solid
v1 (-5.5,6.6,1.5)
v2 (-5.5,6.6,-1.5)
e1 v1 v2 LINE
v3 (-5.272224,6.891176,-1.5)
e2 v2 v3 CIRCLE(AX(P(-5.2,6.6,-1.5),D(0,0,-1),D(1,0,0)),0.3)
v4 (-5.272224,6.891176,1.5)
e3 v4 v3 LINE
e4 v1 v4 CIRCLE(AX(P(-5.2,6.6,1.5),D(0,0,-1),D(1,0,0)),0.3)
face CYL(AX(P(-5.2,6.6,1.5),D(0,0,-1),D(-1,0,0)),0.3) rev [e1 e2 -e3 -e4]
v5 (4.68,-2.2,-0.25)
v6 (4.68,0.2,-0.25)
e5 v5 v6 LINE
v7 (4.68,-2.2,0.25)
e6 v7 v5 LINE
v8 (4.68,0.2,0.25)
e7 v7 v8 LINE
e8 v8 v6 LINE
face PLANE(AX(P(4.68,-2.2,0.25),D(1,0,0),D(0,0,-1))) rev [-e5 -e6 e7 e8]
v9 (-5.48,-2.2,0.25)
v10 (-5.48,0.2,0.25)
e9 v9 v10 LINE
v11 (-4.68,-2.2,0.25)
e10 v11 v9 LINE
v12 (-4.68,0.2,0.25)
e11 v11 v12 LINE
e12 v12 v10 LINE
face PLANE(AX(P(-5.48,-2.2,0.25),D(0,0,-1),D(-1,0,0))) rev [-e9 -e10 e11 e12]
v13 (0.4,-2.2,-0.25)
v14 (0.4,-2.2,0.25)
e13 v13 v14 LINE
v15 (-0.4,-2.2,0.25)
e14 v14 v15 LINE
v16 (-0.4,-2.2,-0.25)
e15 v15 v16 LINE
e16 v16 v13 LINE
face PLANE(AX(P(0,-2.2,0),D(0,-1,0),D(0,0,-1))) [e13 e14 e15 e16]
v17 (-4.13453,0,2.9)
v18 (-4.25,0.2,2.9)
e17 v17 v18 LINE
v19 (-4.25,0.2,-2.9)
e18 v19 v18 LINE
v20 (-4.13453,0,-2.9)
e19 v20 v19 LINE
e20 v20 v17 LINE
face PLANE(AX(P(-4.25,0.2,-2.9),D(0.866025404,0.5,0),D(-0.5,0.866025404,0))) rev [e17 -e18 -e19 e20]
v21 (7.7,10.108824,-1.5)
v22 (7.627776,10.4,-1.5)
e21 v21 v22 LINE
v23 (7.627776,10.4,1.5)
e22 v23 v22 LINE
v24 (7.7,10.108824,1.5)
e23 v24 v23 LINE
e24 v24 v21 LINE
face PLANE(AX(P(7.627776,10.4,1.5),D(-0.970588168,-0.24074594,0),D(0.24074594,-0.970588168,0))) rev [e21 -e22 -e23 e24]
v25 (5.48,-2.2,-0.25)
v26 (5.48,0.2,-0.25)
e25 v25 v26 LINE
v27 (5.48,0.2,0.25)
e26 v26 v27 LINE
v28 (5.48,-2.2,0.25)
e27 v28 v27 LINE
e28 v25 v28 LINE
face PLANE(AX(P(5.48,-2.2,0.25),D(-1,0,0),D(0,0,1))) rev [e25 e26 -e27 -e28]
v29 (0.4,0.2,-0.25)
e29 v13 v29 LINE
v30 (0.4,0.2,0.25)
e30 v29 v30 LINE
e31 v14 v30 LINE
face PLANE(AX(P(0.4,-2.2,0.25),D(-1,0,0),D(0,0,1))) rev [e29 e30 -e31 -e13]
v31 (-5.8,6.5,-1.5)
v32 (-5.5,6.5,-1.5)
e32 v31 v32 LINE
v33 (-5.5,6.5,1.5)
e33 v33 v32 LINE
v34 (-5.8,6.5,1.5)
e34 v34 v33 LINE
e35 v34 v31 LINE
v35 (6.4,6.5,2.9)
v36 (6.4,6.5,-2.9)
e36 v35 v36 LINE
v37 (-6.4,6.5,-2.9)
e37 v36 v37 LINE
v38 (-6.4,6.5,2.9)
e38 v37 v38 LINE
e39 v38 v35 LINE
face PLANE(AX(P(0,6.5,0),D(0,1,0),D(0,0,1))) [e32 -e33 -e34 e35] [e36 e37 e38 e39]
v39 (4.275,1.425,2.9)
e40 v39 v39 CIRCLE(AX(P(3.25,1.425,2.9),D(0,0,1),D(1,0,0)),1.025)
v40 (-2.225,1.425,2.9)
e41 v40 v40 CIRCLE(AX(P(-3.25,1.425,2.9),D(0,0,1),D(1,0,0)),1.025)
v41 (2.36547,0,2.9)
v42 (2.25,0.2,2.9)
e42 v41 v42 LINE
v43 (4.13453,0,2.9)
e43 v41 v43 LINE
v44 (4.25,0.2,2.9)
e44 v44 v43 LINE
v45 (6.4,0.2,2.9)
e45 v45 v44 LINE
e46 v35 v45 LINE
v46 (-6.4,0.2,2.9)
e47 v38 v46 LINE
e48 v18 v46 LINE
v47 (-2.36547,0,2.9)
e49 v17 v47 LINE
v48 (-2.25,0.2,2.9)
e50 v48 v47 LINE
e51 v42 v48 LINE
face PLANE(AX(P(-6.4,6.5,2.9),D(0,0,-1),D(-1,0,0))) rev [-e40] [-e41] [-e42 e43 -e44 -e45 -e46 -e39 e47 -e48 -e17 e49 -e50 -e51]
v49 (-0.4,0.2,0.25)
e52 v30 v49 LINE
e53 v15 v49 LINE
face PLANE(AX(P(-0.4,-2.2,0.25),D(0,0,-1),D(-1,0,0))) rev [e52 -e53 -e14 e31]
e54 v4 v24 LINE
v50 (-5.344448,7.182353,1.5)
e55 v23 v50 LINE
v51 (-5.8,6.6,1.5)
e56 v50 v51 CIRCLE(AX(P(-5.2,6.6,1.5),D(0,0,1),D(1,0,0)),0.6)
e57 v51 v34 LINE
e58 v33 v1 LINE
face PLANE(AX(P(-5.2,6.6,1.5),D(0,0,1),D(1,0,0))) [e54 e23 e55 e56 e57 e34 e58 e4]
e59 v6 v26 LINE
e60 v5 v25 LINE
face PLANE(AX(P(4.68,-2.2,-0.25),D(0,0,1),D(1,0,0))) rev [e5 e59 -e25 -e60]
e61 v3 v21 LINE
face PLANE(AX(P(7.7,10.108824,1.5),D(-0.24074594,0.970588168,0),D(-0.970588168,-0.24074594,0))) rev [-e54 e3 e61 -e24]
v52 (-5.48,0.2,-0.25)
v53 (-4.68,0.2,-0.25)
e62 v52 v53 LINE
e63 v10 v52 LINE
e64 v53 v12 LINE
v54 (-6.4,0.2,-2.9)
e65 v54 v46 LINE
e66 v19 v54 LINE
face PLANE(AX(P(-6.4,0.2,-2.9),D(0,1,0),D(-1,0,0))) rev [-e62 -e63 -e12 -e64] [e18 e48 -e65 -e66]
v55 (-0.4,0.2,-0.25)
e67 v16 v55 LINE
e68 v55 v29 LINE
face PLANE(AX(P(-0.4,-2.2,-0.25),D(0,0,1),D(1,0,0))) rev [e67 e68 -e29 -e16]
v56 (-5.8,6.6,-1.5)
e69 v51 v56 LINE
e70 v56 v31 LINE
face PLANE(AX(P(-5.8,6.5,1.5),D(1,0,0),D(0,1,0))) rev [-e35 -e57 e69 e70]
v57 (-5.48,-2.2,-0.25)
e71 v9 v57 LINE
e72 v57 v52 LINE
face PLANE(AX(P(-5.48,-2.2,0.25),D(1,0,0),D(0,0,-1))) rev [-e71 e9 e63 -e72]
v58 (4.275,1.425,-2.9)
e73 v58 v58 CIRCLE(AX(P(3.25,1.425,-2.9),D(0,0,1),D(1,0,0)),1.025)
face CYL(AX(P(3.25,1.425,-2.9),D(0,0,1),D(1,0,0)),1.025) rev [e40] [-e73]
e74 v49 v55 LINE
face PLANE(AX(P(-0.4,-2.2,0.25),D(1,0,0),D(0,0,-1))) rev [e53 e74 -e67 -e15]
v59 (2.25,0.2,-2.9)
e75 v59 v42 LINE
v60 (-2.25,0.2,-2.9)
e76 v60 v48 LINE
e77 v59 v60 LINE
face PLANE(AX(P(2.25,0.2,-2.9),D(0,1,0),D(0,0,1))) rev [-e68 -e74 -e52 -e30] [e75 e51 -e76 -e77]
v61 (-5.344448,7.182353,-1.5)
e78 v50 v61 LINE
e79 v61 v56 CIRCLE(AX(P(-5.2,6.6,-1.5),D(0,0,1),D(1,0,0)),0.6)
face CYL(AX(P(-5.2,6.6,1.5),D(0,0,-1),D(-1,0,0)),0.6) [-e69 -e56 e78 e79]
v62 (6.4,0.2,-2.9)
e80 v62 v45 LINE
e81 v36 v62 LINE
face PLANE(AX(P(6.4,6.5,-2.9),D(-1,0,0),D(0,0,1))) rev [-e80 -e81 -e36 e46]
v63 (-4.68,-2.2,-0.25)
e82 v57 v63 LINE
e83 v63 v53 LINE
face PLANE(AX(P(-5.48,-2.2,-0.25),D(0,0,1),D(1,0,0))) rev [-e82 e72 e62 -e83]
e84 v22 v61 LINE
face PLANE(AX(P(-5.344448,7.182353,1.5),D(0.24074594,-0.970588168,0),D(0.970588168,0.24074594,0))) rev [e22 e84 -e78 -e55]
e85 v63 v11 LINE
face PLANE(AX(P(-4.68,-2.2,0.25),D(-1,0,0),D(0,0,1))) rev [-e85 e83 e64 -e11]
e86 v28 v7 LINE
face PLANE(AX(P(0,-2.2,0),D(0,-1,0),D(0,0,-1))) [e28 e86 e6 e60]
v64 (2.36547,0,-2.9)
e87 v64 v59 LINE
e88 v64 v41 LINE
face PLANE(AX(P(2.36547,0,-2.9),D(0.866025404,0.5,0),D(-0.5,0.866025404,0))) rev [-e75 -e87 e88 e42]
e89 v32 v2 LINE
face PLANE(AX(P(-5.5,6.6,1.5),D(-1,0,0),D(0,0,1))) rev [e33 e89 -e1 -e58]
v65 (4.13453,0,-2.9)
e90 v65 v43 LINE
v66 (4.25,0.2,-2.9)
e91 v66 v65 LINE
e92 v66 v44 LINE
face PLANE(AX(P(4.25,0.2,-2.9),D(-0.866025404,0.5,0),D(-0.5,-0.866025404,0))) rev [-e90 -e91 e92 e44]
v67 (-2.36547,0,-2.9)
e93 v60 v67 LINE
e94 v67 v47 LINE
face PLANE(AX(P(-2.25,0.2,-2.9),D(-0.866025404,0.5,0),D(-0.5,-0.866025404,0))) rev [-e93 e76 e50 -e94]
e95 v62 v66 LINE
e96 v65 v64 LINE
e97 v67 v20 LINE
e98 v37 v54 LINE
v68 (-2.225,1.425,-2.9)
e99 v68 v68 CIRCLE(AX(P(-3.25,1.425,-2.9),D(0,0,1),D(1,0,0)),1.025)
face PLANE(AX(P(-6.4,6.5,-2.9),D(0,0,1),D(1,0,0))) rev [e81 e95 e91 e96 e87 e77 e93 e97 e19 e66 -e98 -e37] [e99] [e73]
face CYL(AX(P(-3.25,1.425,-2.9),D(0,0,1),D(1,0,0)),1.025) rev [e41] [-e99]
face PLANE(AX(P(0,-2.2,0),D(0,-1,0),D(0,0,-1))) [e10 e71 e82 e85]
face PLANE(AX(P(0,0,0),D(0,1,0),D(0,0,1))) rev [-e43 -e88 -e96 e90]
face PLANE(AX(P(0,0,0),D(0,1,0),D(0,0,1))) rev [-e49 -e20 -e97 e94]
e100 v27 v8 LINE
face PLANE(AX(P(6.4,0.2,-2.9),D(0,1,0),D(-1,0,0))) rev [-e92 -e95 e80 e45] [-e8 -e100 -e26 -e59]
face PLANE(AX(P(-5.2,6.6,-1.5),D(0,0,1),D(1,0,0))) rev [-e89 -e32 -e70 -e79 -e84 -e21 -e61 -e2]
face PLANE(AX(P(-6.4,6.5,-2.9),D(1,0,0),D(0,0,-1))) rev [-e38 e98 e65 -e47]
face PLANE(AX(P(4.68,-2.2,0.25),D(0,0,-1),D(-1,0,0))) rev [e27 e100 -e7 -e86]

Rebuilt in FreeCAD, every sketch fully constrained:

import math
import FreeCAD as App
import Part
import Sketcher
from FreeCAD import Vector
Q = App.Units.Quantity


def add_polygon(sketch, points):
    """Adds a closed chain of lines whose ends are joined by coincident constraints."""
    first, n = sketch.GeometryCount, len(points)
    for a, b in zip(points, points[1:] + points[:1]):
        sketch.addGeometry(Part.LineSegment(App.Vector(*a, 0), App.Vector(*b, 0)), False)
    for i in range(n):
        sketch.addConstraint(Sketcher.Constraint("Coincident", first + i, 2, first + (i + 1) % n, 1))

doc = App.newDocument("Part")
body = doc.addObject("PartDesign::Body", "Body")

# Sketch on XZ plane
sketch1 = body.newObject("Sketcher::SketchObject", "Sketch")
sketch1.AttachmentSupport = (doc.getObject("XZ_Plane"), [""])
sketch1.MapMode = "FlatFace"
add_polygon(sketch1, [(-6.4, -2.9), (-6.4, 2.9), (6.4, 2.9), (6.4, -2.9)])  # lines 0-3
sketch1.addConstraint([
    Sketcher.Constraint("Vertical", 0),
    Sketcher.Constraint("Horizontal", 1),
    Sketcher.Constraint("Vertical", 2),
    Sketcher.Constraint("Horizontal", 3),
    Sketcher.Constraint("Symmetric", 0, 2, 2, 2, -1, 1),
    Sketcher.Constraint("DistanceX", 1, 1, 1, 2, Q("12.8 mm")),
    Sketcher.Constraint("DistanceY", 0, 1, 0, 2, Q("5.8 mm")),
])
pad1 = body.newObject("PartDesign::Pad", "Pad")
pad1.Profile = sketch1
pad1.Length = 6.5
pad1.Reversed = True

# Sketch on XY plane
sketch2 = body.newObject("Sketcher::SketchObject", "Sketch001")
sketch2.AttachmentSupport = (doc.getObject("XY_Plane"), [""])
sketch2.MapMode = "FlatFace"
sketch2.AttachmentOffset = App.Placement(Vector(0, 0, 2.9), App.Rotation())
sketch2.addGeometry(Part.Circle(Vector(-3.25, 1.425, 0), Vector(0, 0, 1), 1.025), False)  # 0
sketch2.addGeometry(Part.Circle(Vector(3.25, 1.425, 0), Vector(0, 0, 1), 1.025), False)  # 1
add_polygon(sketch2, [(-4.25, 0.2), (-6.4, 0.2), (-6.4, 0), (-4.13453, 0)])  # lines 2-5
add_polygon(sketch2, [(4.13453, 0), (6.4, 0), (6.4, 0.2), (4.25, 0.2)])  # lines 6-9
add_polygon(sketch2, [(2.36547, 0), (2.25, 0.2), (-2.25, 0.2), (-2.36547, 0)])  # lines 10-13
sketch2.addConstraint([
    Sketcher.Constraint("Horizontal", 2),
    Sketcher.Constraint("Vertical", 3),
    Sketcher.Constraint("Horizontal", 4),
    Sketcher.Constraint("Horizontal", 6),
    Sketcher.Constraint("Vertical", 7),
    Sketcher.Constraint("Horizontal", 8),
    Sketcher.Constraint("Horizontal", 11),
    Sketcher.Constraint("Horizontal", 13),
    Sketcher.Constraint("Equal", 0, 1),
    Sketcher.Constraint("Symmetric", 3, 2, 6, 2, -1, 1),
    Sketcher.Constraint("Symmetric", 12, 2, 13, 2, -1, 1),
    Sketcher.Constraint("Symmetric", 0, 3, 1, 3, -2),
    Sketcher.Constraint("Symmetric", 5, 2, 8, 2, -2),
    Sketcher.Constraint("Symmetric", 4, 2, 9, 2, -2),
    Sketcher.Constraint("Parallel", 5, 10),
    Sketcher.Constraint("Parallel", 9, 12),
    Sketcher.Constraint("Horizontal", 8, 2, 10, 2),
    Sketcher.Constraint("Diameter", 0, Q("2.05 mm")),
    Sketcher.Constraint("Angle", 5, Q("120 deg")),
    Sketcher.Constraint("DistanceX", 11, 2, 11, 1, Q("4.5 mm")),
    Sketcher.Constraint("DistanceY", 3, 2, 3, 1, Q("0.2 mm")),
    Sketcher.Constraint("DistanceX", 5, 2, 0, 3, Q("1 mm")),
    Sketcher.Constraint("DistanceX", 10, 2, 1, 3, Q("1 mm")),
    Sketcher.Constraint("DistanceX", 2, 2, 2, 1, Q("2.15 mm")),
    Sketcher.Constraint("DistanceY", -1, 1, 0, 3, Q("1.425 mm")),
])
pocket1 = body.newObject("PartDesign::Pocket", "Pocket")
pocket1.Profile = sketch2
pocket1.Type = "ThroughAll"

# Sketch on XZ plane
sketch3 = body.newObject("Sketcher::SketchObject", "Sketch002")
sketch3.AttachmentSupport = (doc.getObject("XZ_Plane"), [""])
sketch3.MapMode = "FlatFace"
sketch3.AttachmentOffset = App.Placement(Vector(0, 0, -0.2), App.Rotation())
add_polygon(sketch3, [(-0.4, 0.25), (-0.4, -0.25), (0.4, -0.25), (0.4, 0.25)])  # lines 0-3
add_polygon(sketch3, [(4.68, 0.25), (4.68, -0.25), (5.48, -0.25), (5.48, 0.25)])  # lines 4-7
add_polygon(sketch3, [(-5.48, 0.25), (-5.48, -0.25), (-4.68, -0.25), (-4.68, 0.25)])  # lines 8-11
sketch3.addConstraint([
    Sketcher.Constraint("Vertical", 0),
    Sketcher.Constraint("Horizontal", 1),
    Sketcher.Constraint("Vertical", 2),
    Sketcher.Constraint("Horizontal", 3),
    Sketcher.Constraint("Vertical", 4),
    Sketcher.Constraint("Horizontal", 5),
    Sketcher.Constraint("Vertical", 6),
    Sketcher.Constraint("Horizontal", 7),
    Sketcher.Constraint("Vertical", 8),
    Sketcher.Constraint("Horizontal", 9),
    Sketcher.Constraint("Vertical", 10),
    Sketcher.Constraint("Horizontal", 11),
    Sketcher.Constraint("Symmetric", 0, 2, 2, 2, -1, 1),
    Sketcher.Constraint("Symmetric", 6, 2, 8, 2, -1, 1),
    Sketcher.Constraint("Symmetric", 4, 2, 10, 2, -1, 1),
    Sketcher.Constraint("Horizontal", 1, 2, 4, 2),
    Sketcher.Constraint("Horizontal", 3, 2, 6, 2),
    Sketcher.Constraint("Equal", 3, 5),
    Sketcher.Constraint("DistanceX", 1, 1, 1, 2, Q("0.8 mm")),
    Sketcher.Constraint("DistanceY", 0, 2, 0, 1, Q("0.5 mm")),
    Sketcher.Constraint("DistanceX", -1, 1, 4, 2, Q("4.68 mm")),
])
pad2 = body.newObject("PartDesign::Pad", "Pad001")
pad2.Profile = sketch3
pad2.Length = 2.4

# Sketch on XY plane
sketch4 = body.newObject("Sketcher::SketchObject", "Sketch003")
sketch4.AttachmentSupport = (doc.getObject("XY_Plane"), [""])
sketch4.MapMode = "FlatFace"
sketch4.addGeometry([
    Part.LineSegment(Vector(-5.8, 6.6, 0), Vector(-5.8, 6.5, 0)),  # 0
    Part.LineSegment(Vector(-5.8, 6.5, 0), Vector(-5.5, 6.5, 0)),  # 1
    Part.LineSegment(Vector(-5.5, 6.5, 0), Vector(-5.5, 6.6, 0)),  # 2
    Part.ArcOfCircle(Part.Circle(Vector(-5.2, 6.6, 0), Vector(0, 0, 1), 0.3), math.radians(103.930571), math.radians(180)),  # 3
    Part.LineSegment(Vector(-5.272224, 6.891176, 0), Vector(7.7, 10.108824, 0)),  # 4
    Part.LineSegment(Vector(7.7, 10.108824, 0), Vector(7.627776, 10.4, 0)),  # 5
    Part.LineSegment(Vector(7.627776, 10.4, 0), Vector(-5.344448, 7.182353, 0)),  # 6
    Part.ArcOfCircle(Part.Circle(Vector(-5.2, 6.6, 0), Vector(0, 0, 1), 0.6), math.radians(103.93057), math.radians(180)),  # 7
], False)
sketch4.addConstraint([
    Sketcher.Constraint("Coincident", 0, 2, 1, 1),
    Sketcher.Constraint("Coincident", 1, 2, 2, 1),
    Sketcher.Constraint("Tangent", 2, 2, 3, 2),
    Sketcher.Constraint("Tangent", 3, 1, 4, 1),
    Sketcher.Constraint("Coincident", 4, 2, 5, 1),
    Sketcher.Constraint("Coincident", 5, 2, 6, 1),
    Sketcher.Constraint("Tangent", 6, 2, 7, 1),
    Sketcher.Constraint("Tangent", 7, 2, 0, 1),
    Sketcher.Constraint("Vertical", 0),
    Sketcher.Constraint("Horizontal", 1),
    Sketcher.Constraint("Vertical", 2),
    Sketcher.Constraint("Coincident", 7, 3, 3, 3),
    Sketcher.Constraint("Perpendicular", 4, 5),
    Sketcher.Constraint("Perpendicular", 5, 6),
    Sketcher.Constraint("Radius", 3, Q("0.3 mm")),
    Sketcher.Constraint("Radius", 7, Q("0.6 mm")),
    Sketcher.Constraint("DistanceY", 0, 2, 0, 1, Q("0.1 mm")),
    Sketcher.Constraint("DistanceX", 3, 3, -1, 1, Q("5.2 mm")),
    Sketcher.Constraint("DistanceY", -1, 1, 3, 3, Q("6.6 mm")),
    Sketcher.Constraint("DistanceX", -1, 1, 4, 2, Q("7.7 mm")),
    Sketcher.Constraint("DistanceY", -1, 1, 5, 2, Q("10.4 mm")),
])
pad3 = body.newObject("PartDesign::Pad", "Pad002")
pad3.Profile = sketch4
pad3.Length = 3
pad3.Midplane = True

doc.recompute()
